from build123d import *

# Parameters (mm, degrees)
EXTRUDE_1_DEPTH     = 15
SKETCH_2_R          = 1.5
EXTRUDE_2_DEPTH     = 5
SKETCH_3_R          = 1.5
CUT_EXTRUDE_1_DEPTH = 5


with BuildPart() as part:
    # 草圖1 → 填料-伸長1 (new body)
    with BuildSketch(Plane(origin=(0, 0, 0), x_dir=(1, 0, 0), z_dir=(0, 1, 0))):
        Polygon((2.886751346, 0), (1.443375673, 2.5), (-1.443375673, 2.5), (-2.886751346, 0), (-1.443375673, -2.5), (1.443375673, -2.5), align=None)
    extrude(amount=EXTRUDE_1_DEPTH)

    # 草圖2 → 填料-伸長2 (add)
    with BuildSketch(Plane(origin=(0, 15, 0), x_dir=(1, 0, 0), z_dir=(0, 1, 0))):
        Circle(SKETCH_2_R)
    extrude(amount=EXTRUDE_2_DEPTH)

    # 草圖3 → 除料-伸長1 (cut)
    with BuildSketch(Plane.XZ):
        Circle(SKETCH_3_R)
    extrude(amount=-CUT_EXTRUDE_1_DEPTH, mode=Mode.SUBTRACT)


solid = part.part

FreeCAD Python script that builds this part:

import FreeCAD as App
import Part
import Sketcher
Q = App.Units.Quantity

doc = App.newDocument("Part")
params = doc.addObject("Spreadsheet::Sheet", "Params")
for row, (alias, value) in enumerate([
    ("pad1_length", "15 mm"),
    ("sketch2_diameter", "3 mm"),
    ("pad2_length", "5 mm"),
    ("sketch3_diameter", "3 mm"),
    ("pocket1_length", "5 mm"),
], start=1):
    params.set(f"A{row}", alias)
    params.set(f"B{row}", "=" + value)
    params.setAlias(f"B{row}", alias)

body = doc.addObject("PartDesign::Body", "Body")

# Sketch on XZ plane
sketch1 = body.newObject("Sketcher::SketchObject", "Sketch")
sketch1.AttachmentSupport = (doc.getObject("XZ_Plane"), [""])
sketch1.MapMode = "FlatFace"
sketch1.addGeometry([
    Part.LineSegment(App.Vector(2.9, 0, 0), App.Vector(1.4, -2.5, 0)),  # 0
    Part.LineSegment(App.Vector(1.4, -2.5, 0), App.Vector(-1.4, -2.5, 0)),  # 1
    Part.LineSegment(App.Vector(-1.4, -2.5, 0), App.Vector(-2.9, 0, 0)),  # 2
    Part.LineSegment(App.Vector(-2.9, 0, 0), App.Vector(-1.4, 2.5, 0)),  # 3
    Part.LineSegment(App.Vector(-1.4, 2.5, 0), App.Vector(1.4, 2.5, 0)),  # 4
    Part.LineSegment(App.Vector(1.4, 2.5, 0), App.Vector(2.9, 0, 0)),  # 5
], False)
sketch1.addConstraint([
    Sketcher.Constraint("Coincident", 0, 2, 1, 1),
    Sketcher.Constraint("Coincident", 1, 2, 2, 1),
    Sketcher.Constraint("Coincident", 2, 2, 3, 1),
    Sketcher.Constraint("Coincident", 3, 2, 4, 1),
    Sketcher.Constraint("Coincident", 4, 2, 5, 1),
    Sketcher.Constraint("Coincident", 5, 2, 0, 1),
    Sketcher.Constraint("Horizontal", 1),
    Sketcher.Constraint("Horizontal", 4),
    Sketcher.Constraint("Symmetric", 0, 2, 3, 2, -1, 1),
    Sketcher.Constraint("Symmetric", 2, 2, 5, 2, -1, 1),
    Sketcher.Constraint("PointOnObject", 2, 2, -1),
    Sketcher.Constraint("Parallel", 2, 5),
    Sketcher.Constraint("Vertical", 1, 2, 3, 2),
    Sketcher.Constraint("Angle", 0, Q("-120 deg")),
    Sketcher.Constraint("DistanceY", 1, 2, 3, 2, Q("5 mm")),
    Sketcher.Constraint("DistanceX", 1, 2, 1, 1, Q("2.886751 mm")),
])
pad1 = body.newObject("PartDesign::Pad", "Pad")
pad1.Profile = sketch1
pad1.setExpression("Length", "Params.pad1_length")
pad1.Reversed = True

# Sketch on XZ plane
sketch2 = body.newObject("Sketcher::SketchObject", "Sketch001")
sketch2.AttachmentSupport = (doc.getObject("XZ_Plane"), [""])
sketch2.MapMode = "FlatFace"
sketch2.AttachmentOffset = App.Placement(App.Vector(0, 0, -15), App.Rotation())
sketch2.addGeometry(Part.Circle(App.Vector(0, 0, 0), App.Vector(0, 0, 1), 1.5), False)
sketch2.addConstraint([
    Sketcher.Constraint("Coincident", 0, 3, -1, 1),
    Sketcher.Constraint("Diameter", 0, Q("3 mm")),
])
sketch2.setExpression("Constraints[1]", "Params.sketch2_diameter")
pad2 = body.newObject("PartDesign::Pad", "Pad001")
pad2.Profile = sketch2
pad2.setExpression("Length", "Params.pad2_length")
pad2.Reversed = True

# Sketch on XZ plane
sketch3 = body.newObject("Sketcher::SketchObject", "Sketch002")
sketch3.AttachmentSupport = (doc.getObject("XZ_Plane"), [""])
sketch3.MapMode = "FlatFace"
sketch3.addGeometry(Part.Circle(App.Vector(0, 0, 0), App.Vector(0, 0, 1), 1.5), False)
sketch3.addConstraint([
    Sketcher.Constraint("Coincident", 0, 3, -1, 1),
    Sketcher.Constraint("Diameter", 0, Q("3 mm")),
])
sketch3.setExpression("Constraints[1]", "Params.sketch3_diameter")
pocket1 = body.newObject("PartDesign::Pocket", "Pocket")
pocket1.Profile = sketch3
pocket1.setExpression("Length", "Params.pocket1_length")

doc.recompute()
